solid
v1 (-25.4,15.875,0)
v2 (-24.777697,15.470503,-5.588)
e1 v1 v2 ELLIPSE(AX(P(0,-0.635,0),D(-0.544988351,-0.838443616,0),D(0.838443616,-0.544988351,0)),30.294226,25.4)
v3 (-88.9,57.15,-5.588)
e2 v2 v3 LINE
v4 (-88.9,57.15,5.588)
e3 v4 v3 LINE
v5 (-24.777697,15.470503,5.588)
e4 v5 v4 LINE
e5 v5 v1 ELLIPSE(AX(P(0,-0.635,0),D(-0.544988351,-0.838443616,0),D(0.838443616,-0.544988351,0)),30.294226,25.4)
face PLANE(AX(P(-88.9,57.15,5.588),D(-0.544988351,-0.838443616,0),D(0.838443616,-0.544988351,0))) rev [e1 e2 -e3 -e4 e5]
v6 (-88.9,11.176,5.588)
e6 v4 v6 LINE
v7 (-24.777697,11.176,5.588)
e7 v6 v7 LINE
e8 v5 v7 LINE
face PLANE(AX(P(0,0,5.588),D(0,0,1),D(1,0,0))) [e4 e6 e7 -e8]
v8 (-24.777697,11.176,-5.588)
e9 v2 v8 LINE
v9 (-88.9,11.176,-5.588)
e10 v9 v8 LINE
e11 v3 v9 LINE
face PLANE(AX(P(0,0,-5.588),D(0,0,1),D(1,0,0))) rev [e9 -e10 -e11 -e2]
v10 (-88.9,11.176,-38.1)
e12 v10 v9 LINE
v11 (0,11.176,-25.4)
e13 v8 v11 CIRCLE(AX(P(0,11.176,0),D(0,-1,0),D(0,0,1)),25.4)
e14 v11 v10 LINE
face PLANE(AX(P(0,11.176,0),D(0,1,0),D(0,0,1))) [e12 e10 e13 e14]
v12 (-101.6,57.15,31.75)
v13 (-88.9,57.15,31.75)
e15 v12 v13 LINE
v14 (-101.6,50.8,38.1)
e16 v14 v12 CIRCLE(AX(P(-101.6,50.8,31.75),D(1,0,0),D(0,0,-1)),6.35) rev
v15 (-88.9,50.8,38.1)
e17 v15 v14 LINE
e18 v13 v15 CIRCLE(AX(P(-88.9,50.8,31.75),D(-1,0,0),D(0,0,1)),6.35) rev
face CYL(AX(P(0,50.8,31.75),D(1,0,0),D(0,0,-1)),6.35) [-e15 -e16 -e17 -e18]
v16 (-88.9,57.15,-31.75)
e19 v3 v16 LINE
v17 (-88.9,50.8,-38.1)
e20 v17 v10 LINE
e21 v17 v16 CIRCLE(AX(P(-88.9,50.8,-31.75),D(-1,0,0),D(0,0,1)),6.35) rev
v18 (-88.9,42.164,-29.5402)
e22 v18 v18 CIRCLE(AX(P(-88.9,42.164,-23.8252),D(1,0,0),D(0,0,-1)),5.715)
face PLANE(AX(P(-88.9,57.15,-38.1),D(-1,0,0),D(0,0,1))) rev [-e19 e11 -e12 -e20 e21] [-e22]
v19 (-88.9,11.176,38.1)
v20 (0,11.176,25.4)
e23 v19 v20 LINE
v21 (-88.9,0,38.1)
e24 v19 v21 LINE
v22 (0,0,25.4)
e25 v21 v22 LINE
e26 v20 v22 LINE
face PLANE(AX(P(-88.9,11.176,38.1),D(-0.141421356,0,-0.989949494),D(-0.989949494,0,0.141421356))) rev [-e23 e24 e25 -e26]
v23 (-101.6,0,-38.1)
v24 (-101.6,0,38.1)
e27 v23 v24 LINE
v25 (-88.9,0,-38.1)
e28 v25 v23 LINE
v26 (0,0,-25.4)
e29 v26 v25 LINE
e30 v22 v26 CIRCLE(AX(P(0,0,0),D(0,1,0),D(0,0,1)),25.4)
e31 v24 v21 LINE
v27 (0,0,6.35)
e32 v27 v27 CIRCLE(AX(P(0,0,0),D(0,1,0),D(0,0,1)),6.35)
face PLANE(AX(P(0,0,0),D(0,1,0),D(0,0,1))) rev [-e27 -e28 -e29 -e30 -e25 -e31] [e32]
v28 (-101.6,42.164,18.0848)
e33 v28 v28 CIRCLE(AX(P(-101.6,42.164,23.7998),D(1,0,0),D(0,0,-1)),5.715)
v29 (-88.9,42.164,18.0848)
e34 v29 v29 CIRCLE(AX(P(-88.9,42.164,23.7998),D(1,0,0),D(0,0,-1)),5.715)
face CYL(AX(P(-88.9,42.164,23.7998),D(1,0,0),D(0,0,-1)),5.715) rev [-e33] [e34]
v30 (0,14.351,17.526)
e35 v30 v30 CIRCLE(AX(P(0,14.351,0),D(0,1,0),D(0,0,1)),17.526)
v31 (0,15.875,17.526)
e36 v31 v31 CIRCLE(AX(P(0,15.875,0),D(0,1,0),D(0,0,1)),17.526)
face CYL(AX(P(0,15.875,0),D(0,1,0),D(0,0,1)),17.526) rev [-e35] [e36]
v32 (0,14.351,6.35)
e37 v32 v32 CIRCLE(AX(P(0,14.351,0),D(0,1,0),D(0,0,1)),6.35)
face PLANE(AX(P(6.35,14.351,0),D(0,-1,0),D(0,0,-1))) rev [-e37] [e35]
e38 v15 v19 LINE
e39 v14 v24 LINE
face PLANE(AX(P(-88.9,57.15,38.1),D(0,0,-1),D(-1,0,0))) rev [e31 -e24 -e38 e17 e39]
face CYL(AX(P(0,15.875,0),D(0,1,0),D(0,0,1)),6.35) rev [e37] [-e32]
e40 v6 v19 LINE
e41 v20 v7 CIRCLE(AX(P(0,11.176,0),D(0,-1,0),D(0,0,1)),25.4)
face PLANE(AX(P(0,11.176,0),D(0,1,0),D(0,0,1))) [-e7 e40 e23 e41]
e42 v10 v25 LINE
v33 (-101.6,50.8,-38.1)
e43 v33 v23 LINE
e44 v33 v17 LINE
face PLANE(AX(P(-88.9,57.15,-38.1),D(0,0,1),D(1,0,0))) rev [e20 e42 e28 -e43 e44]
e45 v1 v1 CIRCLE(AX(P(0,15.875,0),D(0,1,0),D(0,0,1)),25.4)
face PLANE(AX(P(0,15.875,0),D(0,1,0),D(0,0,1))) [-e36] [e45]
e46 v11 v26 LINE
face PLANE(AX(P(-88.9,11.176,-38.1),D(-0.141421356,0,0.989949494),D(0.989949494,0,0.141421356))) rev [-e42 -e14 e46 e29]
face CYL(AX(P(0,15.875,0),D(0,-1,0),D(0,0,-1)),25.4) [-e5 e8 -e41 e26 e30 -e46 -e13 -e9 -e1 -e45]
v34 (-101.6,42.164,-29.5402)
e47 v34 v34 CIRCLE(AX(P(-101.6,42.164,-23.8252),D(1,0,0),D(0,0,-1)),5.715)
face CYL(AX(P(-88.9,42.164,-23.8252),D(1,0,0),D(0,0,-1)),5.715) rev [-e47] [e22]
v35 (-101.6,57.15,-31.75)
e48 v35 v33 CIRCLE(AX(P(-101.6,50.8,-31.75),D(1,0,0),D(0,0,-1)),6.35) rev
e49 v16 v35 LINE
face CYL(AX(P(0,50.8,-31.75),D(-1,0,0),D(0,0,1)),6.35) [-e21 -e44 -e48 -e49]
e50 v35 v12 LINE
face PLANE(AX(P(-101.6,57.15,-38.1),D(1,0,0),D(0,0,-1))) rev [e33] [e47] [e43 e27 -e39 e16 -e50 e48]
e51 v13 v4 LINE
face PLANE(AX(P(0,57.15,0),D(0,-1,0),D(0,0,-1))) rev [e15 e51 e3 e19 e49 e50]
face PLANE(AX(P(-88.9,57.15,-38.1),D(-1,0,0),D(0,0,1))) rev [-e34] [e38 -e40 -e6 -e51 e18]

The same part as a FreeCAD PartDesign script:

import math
import FreeCAD as App
import Part
import Sketcher
from FreeCAD import Vector
Q = App.Units.Quantity


def edges_at(feature, points):
    """Names of the edges that pass closest to the given points."""
    edges = feature.Shape.Edges
    near = lambda p: min(range(len(edges)), key=lambda i: edges[i].distToShape(Part.Vertex(*p))[0])
    return sorted({f"Edge{near(p) + 1}" for p in points})


def add_polygon(sketch, points):
    """Adds a closed chain of lines whose ends are joined by coincident constraints."""
    first, n = sketch.GeometryCount, len(points)
    for a, b in zip(points, points[1:] + points[:1]):
        sketch.addGeometry(Part.LineSegment(App.Vector(*a, 0), App.Vector(*b, 0)), False)
    for i in range(n):
        sketch.addConstraint(Sketcher.Constraint("Coincident", first + i, 2, first + (i + 1) % n, 1))

doc = App.newDocument("Part")
body = doc.addObject("PartDesign::Body", "Body")

# Sketch on XZ plane
sketch1 = body.newObject("Sketcher::SketchObject", "Sketch")
sketch1.AttachmentSupport = (doc.getObject("XZ_Plane"), [""])
sketch1.MapMode = "FlatFace"
sketch1.addGeometry(Part.Circle(Vector(0, 0, 0), Vector(0, 0, 1), 25), False)
sketch1.addConstraint(Sketcher.Constraint("Coincident", 0, 3, -1, 1))
sketch1.addConstraint(Sketcher.Constraint("Diameter", 0, Q("2 in")))
pad1 = body.newObject("PartDesign::Pad", "Pad")
pad1.Profile = sketch1
pad1.Length = Q("0.625 in")
pad1.Reversed = True

# Sketch on XZ plane
sketch2 = body.newObject("Sketcher::SketchObject", "Sketch001")
sketch2.AttachmentSupport = (doc.getObject("XZ_Plane"), [""])
sketch2.MapMode = "FlatFace"
sketch2.addGeometry(Part.LineSegment(Vector(-89, -38, 0), Vector(-89, 38, 0)), False)
sketch2.addGeometry(Part.LineSegment(Vector(-89, 38, 0), Vector(0, 25, 0)), False)
sketch2.addGeometry(Part.ArcOfCircle(Part.Circle(Vector(0, 0, 0), Vector(0, 0, 1), 25), math.radians(90), math.radians(270)), False)
sketch2.addGeometry(Part.LineSegment(Vector(0, -25, 0), Vector(-89, -38, 0)), False)
sketch2.addConstraint(Sketcher.Constraint("Coincident", 0, 2, 1, 1))
sketch2.addConstraint(Sketcher.Constraint("Coincident", 1, 2, 2, 1))
sketch2.addConstraint(Sketcher.Constraint("Coincident", 2, 2, 3, 1))
sketch2.addConstraint(Sketcher.Constraint("Coincident", 3, 2, 0, 1))
sketch2.addConstraint(Sketcher.Constraint("Vertical", 0))
sketch2.addConstraint(Sketcher.Constraint("Coincident", 2, 3, -1, 1))
sketch2.addConstraint(Sketcher.Constraint("PointOnObject", 1, 2, -2))
sketch2.addConstraint(Sketcher.Constraint("PointOnObject", 2, 2, -2))
sketch2.addConstraint(Sketcher.Constraint("Equal", 1, 3))
sketch2.addConstraint(Sketcher.Constraint("Radius", 2, Q("1 in")))
sketch2.addConstraint(Sketcher.Constraint("DistanceY", 0, 1, 0, 2, Q("3 in")))
sketch2.addConstraint(Sketcher.Constraint("DistanceX", 0, 2, -1, 1, Q("3.5 in")))
pad2 = body.newObject("PartDesign::Pad", "Pad001")
pad2.Profile = sketch2
pad2.Length = Q("0.44 in")
pad2.Reversed = True

# Sketch on XZ plane
sketch3 = body.newObject("Sketcher::SketchObject", "Sketch002")
sketch3.AttachmentSupport = (doc.getObject("XZ_Plane"), [""])
sketch3.MapMode = "FlatFace"
add_polygon(sketch3, [(-102, -38), (-102, 38), (-89, 38), (-89, -38)])  # lines 0-3
sketch3.addConstraint(Sketcher.Constraint("Vertical", 0))
sketch3.addConstraint(Sketcher.Constraint("Horizontal", 1))
sketch3.addConstraint(Sketcher.Constraint("Vertical", 2))
sketch3.addConstraint(Sketcher.Constraint("Horizontal", 3))
sketch3.addConstraint(Sketcher.Constraint("DistanceY", 0, 1, 0, 2, Q("3 in")))
sketch3.addConstraint(Sketcher.Constraint("DistanceX", 1, 1, 1, 2, Q("0.5 in")))
sketch3.addConstraint(Sketcher.Constraint("DistanceX", 0, 2, -1, 1, Q("4 in")))
sketch3.addConstraint(Sketcher.Constraint("DistanceY", -1, 1, 0, 2, Q("1.5 in")))
pad3 = body.newObject("PartDesign::Pad", "Pad002")
pad3.Profile = sketch3
pad3.Length = Q("2.25 in")
pad3.Reversed = True

# Sketch on XZ plane
sketch4 = body.newObject("Sketcher::SketchObject", "Sketch003")
sketch4.AttachmentSupport = (doc.getObject("XZ_Plane"), [""])
sketch4.MapMode = "FlatFace"
sketch4.AttachmentOffset = App.Placement(Vector(0, 0, -0.625 * 25.4), App.Rotation())
sketch4.addGeometry(Part.Circle(Vector(0, 0, 0), Vector(0, 0, 1), 6), False)
sketch4.addConstraint(Sketcher.Constraint("Coincident", 0, 3, -1, 1))
sketch4.addConstraint(Sketcher.Constraint("Diameter", 0, Q("0.5 in")))
doc.recompute()
hole = body.newObject("PartDesign::Hole", "Hole")
hole.Profile = sketch4
hole.ThreadType = "None"
hole.Diameter = Q("0.5 in")
hole.DepthType = "ThroughAll"
hole.HoleCutType = "Counterbore"
hole.HoleCutDiameter = Q("1.38 in")
hole.HoleCutDepth = Q("0.06 in")
hole.Reversed = True

# Sketch on XY plane
sketch5 = body.newObject("Sketcher::SketchObject", "Sketch004")
sketch5.AttachmentSupport = (doc.getObject("XY_Plane"), [""])
sketch5.MapMode = "FlatFace"
add_polygon(sketch5, [(-22.9, 14.2), (-88.9, 57.1), (-88.9, 11.2), (-22.9, 11.2)])  # lines 0-3
sketch5.addConstraint(Sketcher.Constraint("Vertical", 1))
sketch5.addConstraint(Sketcher.Constraint("Horizontal", 2))
sketch5.addConstraint(Sketcher.Constraint("Vertical", 3))
sketch5.addConstraint(Sketcher.Constraint("DistanceX", 2, 1, 2, 2, Q("2.6 in")))
sketch5.addConstraint(Sketcher.Constraint("DistanceY", 1, 2, 1, 1, Q("1.81 in")))
sketch5.addConstraint(Sketcher.Constraint("DistanceY", 3, 1, 3, 2, Q("0.12 in")))
sketch5.addConstraint(Sketcher.Constraint("DistanceX", 0, 2, -1, 1, Q("3.5 in")))
sketch5.addConstraint(Sketcher.Constraint("DistanceY", -1, 1, 0, 2, Q("2.25 in")))
pad4 = body.newObject("PartDesign::Pad", "Pad003")
pad4.Profile = sketch5
pad4.Length = Q("0.44 in")
pad4.Midplane = True

# Sketch on YZ plane
sketch6 = body.newObject("Sketcher::SketchObject", "Sketch005")
sketch6.AttachmentSupport = (doc.getObject("YZ_Plane"), [""])
sketch6.MapMode = "FlatFace"
sketch6.AttachmentOffset = App.Placement(Vector(0, 0, -3.5 * 25.4), App.Rotation())
sketch6.addGeometry(Part.Circle(Vector(42, 24, 0), Vector(0, 0, 1), 6), False)
sketch6.addGeometry(Part.Circle(Vector(42, -24, 0), Vector(0, 0, 1), 6), False)
sketch6.addConstraint(Sketcher.Constraint("Equal", 0, 1))
sketch6.addConstraint(Sketcher.Constraint("Vertical", 0, 3, 1, 3))
sketch6.addConstraint(Sketcher.Constraint("Diameter", 0, Q("0.45 in")))
sketch6.addConstraint(Sketcher.Constraint("DistanceX", -1, 1, 0, 3, Q("1.66 in")))
sketch6.addConstraint(Sketcher.Constraint("DistanceY", -1, 1, 0, 3, Q("0.937 in")))
sketch6.addConstraint(Sketcher.Constraint("DistanceY", 1, 3, -1, 1, Q("0.938 in")))
doc.recompute()
hole2 = body.newObject("PartDesign::Hole", "Hole001")
hole2.Profile = sketch6
hole2.ThreadType = "None"
hole2.Diameter = Q("0.45 in")
hole2.DepthType = "ThroughAll"
doc.recompute()

fillet = body.newObject("PartDesign::Fillet", "Fillet")
fillet.Base = (hole2, edges_at(hole2, [(-95.25, 57.15, -38.1), (-95.25, 57.15, 38.1)]))
fillet.Radius = Q("0.25 in")

doc.recompute()
